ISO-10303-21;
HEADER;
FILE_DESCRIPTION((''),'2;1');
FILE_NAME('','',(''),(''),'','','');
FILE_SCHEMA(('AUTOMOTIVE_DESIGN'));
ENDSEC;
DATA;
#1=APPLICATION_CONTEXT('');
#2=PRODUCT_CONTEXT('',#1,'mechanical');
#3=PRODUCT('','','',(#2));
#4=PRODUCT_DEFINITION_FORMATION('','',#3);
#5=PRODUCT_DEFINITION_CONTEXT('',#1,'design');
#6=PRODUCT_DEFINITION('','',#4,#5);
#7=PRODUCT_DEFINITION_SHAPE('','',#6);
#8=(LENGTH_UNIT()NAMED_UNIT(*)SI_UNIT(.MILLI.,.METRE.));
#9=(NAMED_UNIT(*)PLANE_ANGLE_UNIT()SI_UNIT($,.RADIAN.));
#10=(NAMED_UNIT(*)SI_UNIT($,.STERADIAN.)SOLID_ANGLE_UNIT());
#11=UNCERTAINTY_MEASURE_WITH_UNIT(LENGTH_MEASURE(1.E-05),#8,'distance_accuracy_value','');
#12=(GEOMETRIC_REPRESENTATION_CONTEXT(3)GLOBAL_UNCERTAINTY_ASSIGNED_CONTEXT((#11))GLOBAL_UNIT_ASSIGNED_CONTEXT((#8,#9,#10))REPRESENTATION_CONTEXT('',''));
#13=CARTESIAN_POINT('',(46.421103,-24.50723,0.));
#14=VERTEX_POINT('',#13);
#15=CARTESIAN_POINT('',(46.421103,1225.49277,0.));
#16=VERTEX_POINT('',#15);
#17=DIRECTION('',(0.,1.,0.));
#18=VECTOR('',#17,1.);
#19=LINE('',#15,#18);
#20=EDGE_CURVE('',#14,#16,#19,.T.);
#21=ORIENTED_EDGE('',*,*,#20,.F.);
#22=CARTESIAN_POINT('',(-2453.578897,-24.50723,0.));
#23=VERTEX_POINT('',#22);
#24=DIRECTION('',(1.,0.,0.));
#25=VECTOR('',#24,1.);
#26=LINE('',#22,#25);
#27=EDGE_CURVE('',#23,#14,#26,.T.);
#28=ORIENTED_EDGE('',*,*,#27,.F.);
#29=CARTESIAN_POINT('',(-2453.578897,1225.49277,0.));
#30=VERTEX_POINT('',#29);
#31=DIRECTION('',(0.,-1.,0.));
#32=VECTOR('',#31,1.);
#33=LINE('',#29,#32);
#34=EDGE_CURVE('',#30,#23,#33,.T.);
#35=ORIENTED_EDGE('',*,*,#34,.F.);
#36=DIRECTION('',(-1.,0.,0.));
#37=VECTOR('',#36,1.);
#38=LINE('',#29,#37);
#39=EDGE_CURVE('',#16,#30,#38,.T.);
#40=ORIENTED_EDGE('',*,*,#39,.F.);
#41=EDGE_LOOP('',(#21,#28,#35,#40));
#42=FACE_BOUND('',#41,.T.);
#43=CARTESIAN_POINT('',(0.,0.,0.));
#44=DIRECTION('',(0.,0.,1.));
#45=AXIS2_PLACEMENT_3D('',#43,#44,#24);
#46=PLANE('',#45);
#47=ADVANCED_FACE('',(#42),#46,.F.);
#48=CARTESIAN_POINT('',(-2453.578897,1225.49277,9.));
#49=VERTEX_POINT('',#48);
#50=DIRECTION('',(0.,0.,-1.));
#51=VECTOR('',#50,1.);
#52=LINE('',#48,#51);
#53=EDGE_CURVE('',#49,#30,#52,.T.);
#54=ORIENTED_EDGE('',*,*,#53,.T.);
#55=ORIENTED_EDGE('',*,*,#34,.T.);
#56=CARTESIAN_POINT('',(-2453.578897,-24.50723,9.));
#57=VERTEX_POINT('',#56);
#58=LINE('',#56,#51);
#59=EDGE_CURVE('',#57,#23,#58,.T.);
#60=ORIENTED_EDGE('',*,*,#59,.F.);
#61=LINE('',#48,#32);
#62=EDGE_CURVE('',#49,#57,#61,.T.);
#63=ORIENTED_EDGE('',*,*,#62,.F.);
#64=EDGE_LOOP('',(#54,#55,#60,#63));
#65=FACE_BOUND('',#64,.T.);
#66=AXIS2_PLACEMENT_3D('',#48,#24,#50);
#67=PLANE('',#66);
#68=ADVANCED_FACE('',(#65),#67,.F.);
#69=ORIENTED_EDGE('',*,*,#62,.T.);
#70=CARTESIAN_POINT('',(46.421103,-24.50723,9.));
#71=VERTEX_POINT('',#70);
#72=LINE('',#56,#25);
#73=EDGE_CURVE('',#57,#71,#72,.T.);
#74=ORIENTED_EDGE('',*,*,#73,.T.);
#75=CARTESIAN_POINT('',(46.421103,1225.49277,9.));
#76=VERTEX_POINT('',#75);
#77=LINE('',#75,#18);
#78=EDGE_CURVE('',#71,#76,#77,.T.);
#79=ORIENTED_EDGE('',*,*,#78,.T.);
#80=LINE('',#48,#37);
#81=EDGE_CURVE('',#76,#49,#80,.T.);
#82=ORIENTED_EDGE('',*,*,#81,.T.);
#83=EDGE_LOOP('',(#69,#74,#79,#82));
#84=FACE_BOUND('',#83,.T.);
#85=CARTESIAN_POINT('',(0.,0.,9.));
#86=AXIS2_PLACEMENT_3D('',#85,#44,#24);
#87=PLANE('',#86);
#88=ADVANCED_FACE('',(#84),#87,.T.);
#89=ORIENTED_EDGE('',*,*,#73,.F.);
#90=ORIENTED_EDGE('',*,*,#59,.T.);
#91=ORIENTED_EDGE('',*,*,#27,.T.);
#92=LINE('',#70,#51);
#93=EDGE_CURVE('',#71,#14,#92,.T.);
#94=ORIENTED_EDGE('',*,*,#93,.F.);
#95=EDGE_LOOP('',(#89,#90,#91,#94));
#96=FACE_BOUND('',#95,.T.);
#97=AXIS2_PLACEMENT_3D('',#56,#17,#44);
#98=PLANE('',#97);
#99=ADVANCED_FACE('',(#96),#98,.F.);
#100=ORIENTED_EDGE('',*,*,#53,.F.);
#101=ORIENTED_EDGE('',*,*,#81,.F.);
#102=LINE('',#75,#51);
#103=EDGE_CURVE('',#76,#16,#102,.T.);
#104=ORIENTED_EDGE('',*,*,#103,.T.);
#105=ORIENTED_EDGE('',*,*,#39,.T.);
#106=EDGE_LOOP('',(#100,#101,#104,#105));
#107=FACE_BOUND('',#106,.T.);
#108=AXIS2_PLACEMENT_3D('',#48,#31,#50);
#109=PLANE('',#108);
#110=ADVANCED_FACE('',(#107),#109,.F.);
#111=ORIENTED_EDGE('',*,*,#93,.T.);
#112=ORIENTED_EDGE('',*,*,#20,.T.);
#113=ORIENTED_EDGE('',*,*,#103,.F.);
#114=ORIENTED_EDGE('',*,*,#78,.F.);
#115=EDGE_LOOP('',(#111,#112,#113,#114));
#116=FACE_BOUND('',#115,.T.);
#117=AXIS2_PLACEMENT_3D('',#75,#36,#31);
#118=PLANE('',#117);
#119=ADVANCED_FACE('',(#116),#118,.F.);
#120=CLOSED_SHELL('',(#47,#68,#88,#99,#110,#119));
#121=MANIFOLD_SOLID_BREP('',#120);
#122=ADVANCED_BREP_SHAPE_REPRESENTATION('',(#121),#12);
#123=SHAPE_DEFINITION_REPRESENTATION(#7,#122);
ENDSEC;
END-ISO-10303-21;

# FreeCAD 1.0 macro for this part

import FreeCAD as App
import Part
import Sketcher
from FreeCAD import Vector

doc = App.newDocument("Part")
body = doc.addObject("PartDesign::Body", "Body")

# Sketch on XY plane
sketch1 = body.newObject("Sketcher::SketchObject", "Sketch")
sketch1.AttachmentSupport = (doc.getObject("XY_Plane"), [""])
sketch1.MapMode = "FlatFace"
sketch1.addGeometry(Part.LineSegment(Vector(-2453.578897, 1225.49277, 0), Vector(-2453.578897, -24.50723, 0)), False)
sketch1.addGeometry(Part.LineSegment(Vector(-2453.578897, -24.50723, 0), Vector(46.421103, -24.50723, 0)), False)
sketch1.addGeometry(Part.LineSegment(Vector(46.421103, -24.50723, 0), Vector(46.421103, 1225.49277, 0)), False)
sketch1.addGeometry(Part.LineSegment(Vector(46.421103, 1225.49277, 0), Vector(-2453.578897, 1225.49277, 0)), False)
sketch1.addConstraint(Sketcher.Constraint("Coincident", 0, 2, 1, 1))
sketch1.addConstraint(Sketcher.Constraint("Coincident", 1, 2, 2, 1))
sketch1.addConstraint(Sketcher.Constraint("Coincident", 2, 2, 3, 1))
sketch1.addConstraint(Sketcher.Constraint("Coincident", 3, 2, 0, 1))
sketch1.addConstraint(Sketcher.Constraint("Vertical", 0))
sketch1.addConstraint(Sketcher.Constraint("Horizontal", 1))
sketch1.addConstraint(Sketcher.Constraint("Vertical", 2))
sketch1.addConstraint(Sketcher.Constraint("Horizontal", 3))
sketch1.addConstraint(Sketcher.Constraint("DistanceX", 1, 1, 1, 2, 2500.0))
sketch1.addConstraint(Sketcher.Constraint("DistanceY", 0, 2, 0, 1, 1250.0))
sketch1.addConstraint(Sketcher.Constraint("DistanceY", 0, 2, -1, 1, 24.50723))
sketch1.addConstraint(Sketcher.Constraint("DistanceX", 0, 2, -1, 1, 2453.578897))
pad1 = body.newObject("PartDesign::Pad", "Pad")
pad1.Profile = sketch1
pad1.Length = 9

doc.recompute()
